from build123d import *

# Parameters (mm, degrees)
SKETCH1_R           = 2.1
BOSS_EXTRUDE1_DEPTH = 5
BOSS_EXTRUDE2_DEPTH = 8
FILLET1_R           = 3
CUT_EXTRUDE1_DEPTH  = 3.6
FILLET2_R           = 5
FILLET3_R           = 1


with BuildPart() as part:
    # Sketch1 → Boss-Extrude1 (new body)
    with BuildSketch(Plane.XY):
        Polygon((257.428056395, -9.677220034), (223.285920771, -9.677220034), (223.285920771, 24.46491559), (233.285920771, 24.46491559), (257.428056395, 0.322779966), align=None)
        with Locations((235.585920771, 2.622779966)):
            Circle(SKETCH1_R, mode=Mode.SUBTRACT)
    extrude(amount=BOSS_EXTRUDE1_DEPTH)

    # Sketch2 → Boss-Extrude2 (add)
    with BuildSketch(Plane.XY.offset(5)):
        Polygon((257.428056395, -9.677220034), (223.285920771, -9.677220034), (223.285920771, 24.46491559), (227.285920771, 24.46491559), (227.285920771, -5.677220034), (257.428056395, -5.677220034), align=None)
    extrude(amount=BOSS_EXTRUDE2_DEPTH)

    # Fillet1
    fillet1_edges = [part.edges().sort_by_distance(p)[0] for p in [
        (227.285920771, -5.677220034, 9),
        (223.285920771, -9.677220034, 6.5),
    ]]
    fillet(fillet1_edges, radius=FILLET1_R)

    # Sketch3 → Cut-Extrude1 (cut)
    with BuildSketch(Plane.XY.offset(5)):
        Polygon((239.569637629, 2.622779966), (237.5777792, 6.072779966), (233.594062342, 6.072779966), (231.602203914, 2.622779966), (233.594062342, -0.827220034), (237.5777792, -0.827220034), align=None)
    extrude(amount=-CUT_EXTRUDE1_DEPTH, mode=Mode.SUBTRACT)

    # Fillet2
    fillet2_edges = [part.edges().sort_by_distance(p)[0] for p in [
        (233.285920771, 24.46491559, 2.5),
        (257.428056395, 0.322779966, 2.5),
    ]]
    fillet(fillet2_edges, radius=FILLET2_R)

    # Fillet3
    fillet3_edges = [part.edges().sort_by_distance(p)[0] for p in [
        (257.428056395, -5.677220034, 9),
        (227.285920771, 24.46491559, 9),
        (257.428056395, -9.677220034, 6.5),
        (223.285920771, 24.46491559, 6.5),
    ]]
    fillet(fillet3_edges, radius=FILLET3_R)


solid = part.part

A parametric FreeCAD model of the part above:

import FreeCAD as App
import Part
import Sketcher
from FreeCAD import Vector
Q = App.Units.Quantity


def edges_at(feature, points):
    """Names of the edges that pass closest to the given points."""
    edges = feature.Shape.Edges
    near = lambda p: min(range(len(edges)), key=lambda i: edges[i].distToShape(Part.Vertex(*p))[0])
    return sorted({f"Edge{near(p) + 1}" for p in points})

doc = App.newDocument("Part")
body = doc.addObject("PartDesign::Body", "Body")

sketch1 = body.newObject("Sketcher::SketchObject", "Sketch")
sketch1.AttachmentSupport = (doc.getObject("XY_Plane"), [""])
sketch1.MapMode = "FlatFace"
sketch1.addGeometry([
    Part.LineSegment(Vector(223.285921, -9.67722, 0), Vector(257.428056, -9.67722, 0)),
    Part.LineSegment(Vector(257.428056, -9.67722, 0), Vector(257.428056, 0.32278, 0)),
    Part.LineSegment(Vector(257.428056, 0.32278, 0), Vector(233.285921, 24.464916, 0)),
    Part.LineSegment(Vector(233.285921, 24.464916, 0), Vector(223.285921, 24.464916, 0)),
    Part.LineSegment(Vector(223.285921, 24.464916, 0), Vector(223.285921, -9.67722, 0)),
    Part.Circle(Vector(235.585921, 2.62278, 0), Vector(0, 0, 1), 2.1),
], False)
sketch1.addConstraint([
    Sketcher.Constraint("Coincident", 0, 2, 1, 1),
    Sketcher.Constraint("Coincident", 1, 2, 2, 1),
    Sketcher.Constraint("Coincident", 2, 2, 3, 1),
    Sketcher.Constraint("Coincident", 3, 2, 4, 1),
    Sketcher.Constraint("Coincident", 4, 2, 0, 1),
    Sketcher.Constraint("Horizontal", 0),
    Sketcher.Constraint("Vertical", 1),
    Sketcher.Constraint("Horizontal", 3),
    Sketcher.Constraint("Vertical", 4),
    Sketcher.Constraint("Equal", 3, 1),
    Sketcher.Constraint("Equal", 0, 4),
    Sketcher.Constraint("Diameter", 5, 4.2),
    Sketcher.Constraint("DistanceX", 3, 2, 3, 1, 10.0),
    Sketcher.Constraint("DistanceY", 0, 2, 5, 3, 12.3),
    Sketcher.Constraint("DistanceX", 2, 2, 5, 3, 2.3),
    Sketcher.Constraint("DistanceX", 0, 1, 0, 2, 34.142136),
    Sketcher.Constraint("DistanceX", -1, 1, 5, 3, 235.585921),
    Sketcher.Constraint("DistanceY", -1, 1, 5, 3, 2.62278),
])
pad1 = body.newObject("PartDesign::Pad", "Pad")
pad1.Profile = sketch1
pad1.Length = 5

sketch2 = body.newObject("Sketcher::SketchObject", "Sketch001")
sketch2.AttachmentSupport = (doc.getObject("XY_Plane"), [""])
sketch2.MapMode = "FlatFace"
sketch2.AttachmentOffset = App.Placement(Vector(0, 0, 5), App.Rotation())
sketch2.addGeometry([
    Part.LineSegment(Vector(223.285921, -9.67722, 0), Vector(257.428056, -9.67722, 0)),
    Part.LineSegment(Vector(257.428056, -9.67722, 0), Vector(257.428056, -5.67722, 0)),
    Part.LineSegment(Vector(257.428056, -5.67722, 0), Vector(227.285921, -5.67722, 0)),
    Part.LineSegment(Vector(227.285921, -5.67722, 0), Vector(227.285921, 24.464916, 0)),
    Part.LineSegment(Vector(227.285921, 24.464916, 0), Vector(223.285921, 24.464916, 0)),
    Part.LineSegment(Vector(223.285921, 24.464916, 0), Vector(223.285921, -9.67722, 0)),
], False)
sketch2.addConstraint([
    Sketcher.Constraint("Coincident", 0, 2, 1, 1),
    Sketcher.Constraint("Coincident", 1, 2, 2, 1),
    Sketcher.Constraint("Coincident", 2, 2, 3, 1),
    Sketcher.Constraint("Coincident", 3, 2, 4, 1),
    Sketcher.Constraint("Coincident", 4, 2, 5, 1),
    Sketcher.Constraint("Coincident", 5, 2, 0, 1),
    Sketcher.Constraint("Horizontal", 0),
    Sketcher.Constraint("Vertical", 1),
    Sketcher.Constraint("Horizontal", 2),
    Sketcher.Constraint("Vertical", 3),
    Sketcher.Constraint("Horizontal", 4),
    Sketcher.Constraint("Vertical", 5),
    Sketcher.Constraint("Equal", 4, 1),
    Sketcher.Constraint("Equal", 2, 3),
    Sketcher.Constraint("DistanceX", 4, 2, 4, 1, 4.0),
    Sketcher.Constraint("DistanceX", 0, 1, 0, 2, 34.142136),
    Sketcher.Constraint("DistanceY", 0, 2, -1, 1, 9.67722),
    Sketcher.Constraint("DistanceX", -1, 1, 2, 2, 227.285921),
])
pad2 = body.newObject("PartDesign::Pad", "Pad001")
pad2.Profile = sketch2
pad2.Length = 8
doc.recompute()

fillet = body.newObject("PartDesign::Fillet", "Fillet")
fillet.Base = (pad2, edges_at(pad2, [(227.286, -5.677, 9), (223.286, -9.677, 6.5)]))
fillet.Radius = 3

sketch3 = body.newObject("Sketcher::SketchObject", "Sketch002")
sketch3.AttachmentSupport = (doc.getObject("XY_Plane"), [""])
sketch3.MapMode = "FlatFace"
sketch3.AttachmentOffset = App.Placement(Vector(0, 0, 5), App.Rotation())
sketch3.addGeometry([
    Part.LineSegment(Vector(239.569638, 2.62278, 0), Vector(237.577779, 6.07278, 0)),
    Part.LineSegment(Vector(237.577779, 6.07278, 0), Vector(233.594062, 6.07278, 0)),
    Part.LineSegment(Vector(233.594062, 6.07278, 0), Vector(231.602204, 2.62278, 0)),
    Part.LineSegment(Vector(231.602204, 2.62278, 0), Vector(233.594062, -0.82722, 0)),
    Part.LineSegment(Vector(233.594062, -0.82722, 0), Vector(237.577779, -0.82722, 0)),
    Part.LineSegment(Vector(237.577779, -0.82722, 0), Vector(239.569638, 2.62278, 0)),
], False)
sketch3.addConstraint([
    Sketcher.Constraint("Coincident", 0, 2, 1, 1),
    Sketcher.Constraint("Coincident", 1, 2, 2, 1),
    Sketcher.Constraint("Coincident", 2, 2, 3, 1),
    Sketcher.Constraint("Coincident", 3, 2, 4, 1),
    Sketcher.Constraint("Coincident", 4, 2, 5, 1),
    Sketcher.Constraint("Coincident", 5, 2, 0, 1),
    Sketcher.Constraint("Horizontal", 1),
    Sketcher.Constraint("Horizontal", 4),
    Sketcher.Constraint("Parallel", 0, 3),
    Sketcher.Constraint("Parallel", 2, 5),
    Sketcher.Constraint("Horizontal", 2, 2, 5, 2),
    Sketcher.Constraint("Vertical", 1, 2, 3, 2),
    Sketcher.Constraint("Vertical", 0, 2, 4, 2),
    Sketcher.Constraint("Angle", 0, Q("120 deg")),
    Sketcher.Constraint("DistanceY", 3, 2, 1, 2, 6.9),
    Sketcher.Constraint("DistanceX", 1, 2, 1, 1, 3.983717),
    Sketcher.Constraint("DistanceX", -1, 1, 0, 2, 237.577779),
    Sketcher.Constraint("DistanceY", -1, 1, 0, 2, 6.07278),
])
pocket1 = body.newObject("PartDesign::Pocket", "Pocket")
pocket1.Profile = sketch3
pocket1.Length = 3.6
doc.recompute()

fillet2 = body.newObject("PartDesign::Fillet", "Fillet001")
fillet2.Base = (pocket1, edges_at(pocket1, [(233.286, 24.465, 2.5), (257.428, 0.323, 2.5)]))
fillet2.Radius = 5
doc.recompute()

fillet3 = body.newObject("PartDesign::Fillet", "Fillet002")
fillet3.Base = (fillet2, edges_at(fillet2, [
    (257.428, -5.677, 9),
    (227.286, 24.465, 9),
    (257.428, -9.677, 6.5),
    (223.286, 24.465, 6.5),
]))
fillet3.Radius = 1

doc.recompute()
